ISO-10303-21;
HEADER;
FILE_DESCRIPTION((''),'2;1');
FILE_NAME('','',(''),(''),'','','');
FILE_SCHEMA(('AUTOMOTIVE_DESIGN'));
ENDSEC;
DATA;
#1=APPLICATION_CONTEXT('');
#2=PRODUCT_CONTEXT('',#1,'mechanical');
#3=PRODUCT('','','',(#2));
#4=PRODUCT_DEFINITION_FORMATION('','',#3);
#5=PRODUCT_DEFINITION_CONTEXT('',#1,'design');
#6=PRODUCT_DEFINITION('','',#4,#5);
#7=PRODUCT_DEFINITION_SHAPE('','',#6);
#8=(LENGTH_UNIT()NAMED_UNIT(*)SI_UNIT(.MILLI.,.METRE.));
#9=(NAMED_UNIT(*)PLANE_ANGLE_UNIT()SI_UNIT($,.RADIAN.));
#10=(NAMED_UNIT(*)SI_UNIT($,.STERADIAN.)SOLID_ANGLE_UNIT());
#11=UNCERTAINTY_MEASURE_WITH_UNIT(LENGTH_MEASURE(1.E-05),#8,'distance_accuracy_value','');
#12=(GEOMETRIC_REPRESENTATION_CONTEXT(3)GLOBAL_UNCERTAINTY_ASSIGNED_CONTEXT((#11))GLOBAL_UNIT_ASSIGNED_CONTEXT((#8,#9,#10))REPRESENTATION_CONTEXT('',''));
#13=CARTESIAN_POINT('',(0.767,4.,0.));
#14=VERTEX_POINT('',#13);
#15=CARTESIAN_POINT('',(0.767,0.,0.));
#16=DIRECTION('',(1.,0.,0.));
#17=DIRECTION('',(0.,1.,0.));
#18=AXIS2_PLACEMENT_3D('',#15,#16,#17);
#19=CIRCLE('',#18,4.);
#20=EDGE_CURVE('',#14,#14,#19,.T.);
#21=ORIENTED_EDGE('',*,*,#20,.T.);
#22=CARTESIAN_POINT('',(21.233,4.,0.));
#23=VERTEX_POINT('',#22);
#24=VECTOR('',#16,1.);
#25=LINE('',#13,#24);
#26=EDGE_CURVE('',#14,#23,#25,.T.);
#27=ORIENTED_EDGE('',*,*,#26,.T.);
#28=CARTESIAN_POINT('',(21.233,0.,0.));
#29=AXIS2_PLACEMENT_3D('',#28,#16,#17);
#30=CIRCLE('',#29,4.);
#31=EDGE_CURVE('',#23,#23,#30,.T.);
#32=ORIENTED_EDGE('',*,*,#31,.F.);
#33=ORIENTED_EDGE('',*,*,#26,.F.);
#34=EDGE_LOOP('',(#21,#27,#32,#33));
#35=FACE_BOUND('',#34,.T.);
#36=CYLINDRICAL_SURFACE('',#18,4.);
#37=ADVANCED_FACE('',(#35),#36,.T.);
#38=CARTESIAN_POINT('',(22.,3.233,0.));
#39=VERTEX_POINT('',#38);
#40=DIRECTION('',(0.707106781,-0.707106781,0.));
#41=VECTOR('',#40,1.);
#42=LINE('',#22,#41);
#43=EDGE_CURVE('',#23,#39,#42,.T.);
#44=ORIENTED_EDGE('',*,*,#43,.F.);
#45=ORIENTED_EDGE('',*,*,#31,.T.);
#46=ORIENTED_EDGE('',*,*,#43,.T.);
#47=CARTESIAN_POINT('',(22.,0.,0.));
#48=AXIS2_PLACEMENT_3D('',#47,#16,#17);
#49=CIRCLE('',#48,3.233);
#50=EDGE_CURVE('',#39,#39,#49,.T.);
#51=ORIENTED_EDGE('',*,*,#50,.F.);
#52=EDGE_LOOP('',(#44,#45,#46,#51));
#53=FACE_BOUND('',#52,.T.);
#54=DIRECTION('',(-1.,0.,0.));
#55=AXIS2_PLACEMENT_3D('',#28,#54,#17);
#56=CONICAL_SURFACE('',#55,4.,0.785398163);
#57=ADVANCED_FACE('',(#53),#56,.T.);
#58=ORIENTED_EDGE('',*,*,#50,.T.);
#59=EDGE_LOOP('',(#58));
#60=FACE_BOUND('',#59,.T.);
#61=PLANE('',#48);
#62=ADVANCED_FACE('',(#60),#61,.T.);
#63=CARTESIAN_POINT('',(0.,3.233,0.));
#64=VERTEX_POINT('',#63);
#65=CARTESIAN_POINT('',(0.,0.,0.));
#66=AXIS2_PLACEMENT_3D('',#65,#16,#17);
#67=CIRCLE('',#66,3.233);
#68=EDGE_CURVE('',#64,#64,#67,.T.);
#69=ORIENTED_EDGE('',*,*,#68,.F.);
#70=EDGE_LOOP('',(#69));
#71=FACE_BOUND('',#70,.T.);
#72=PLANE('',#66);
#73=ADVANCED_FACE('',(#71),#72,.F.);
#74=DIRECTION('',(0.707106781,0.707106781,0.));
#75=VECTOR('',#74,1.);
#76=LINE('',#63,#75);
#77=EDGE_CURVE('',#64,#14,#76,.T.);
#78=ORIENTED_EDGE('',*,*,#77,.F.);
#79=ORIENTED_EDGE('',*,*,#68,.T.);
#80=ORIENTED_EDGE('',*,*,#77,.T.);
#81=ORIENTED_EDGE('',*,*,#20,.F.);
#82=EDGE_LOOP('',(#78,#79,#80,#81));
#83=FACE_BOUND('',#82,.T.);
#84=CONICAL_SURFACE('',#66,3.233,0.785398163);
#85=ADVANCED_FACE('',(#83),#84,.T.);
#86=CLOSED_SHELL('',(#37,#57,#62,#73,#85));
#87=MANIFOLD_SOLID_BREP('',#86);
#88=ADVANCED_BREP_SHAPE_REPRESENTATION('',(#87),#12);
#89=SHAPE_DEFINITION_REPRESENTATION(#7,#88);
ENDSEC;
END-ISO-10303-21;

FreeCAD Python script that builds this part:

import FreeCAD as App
import Part
import Sketcher

V = App.Vector
Q = App.Units.Quantity


def add_polygon(sketch, points):
    """Adds a closed chain of lines whose ends are joined by coincident constraints."""
    first, n = sketch.GeometryCount, len(points)
    for a, b in zip(points, points[1:] + points[:1]):
        sketch.addGeometry(Part.LineSegment(App.Vector(*a, 0), App.Vector(*b, 0)), False)
    for i in range(n):
        sketch.addConstraint(Sketcher.Constraint("Coincident", first + i, 2, first + (i + 1) % n, 1))

doc = App.newDocument("Part")
body = doc.addObject("PartDesign::Body", "Body")

# Sketch on XY plane
sketch1 = doc.addObject("Sketcher::SketchObject", "Sketch")
body.addObject(sketch1)
sketch1.AttachmentSupport = (doc.XY_Plane, [""])
sketch1.MapMode = "FlatFace"
add_polygon(sketch1, [(0, 0), (22, 0), (22, 3.2), (21.2, 4), (0.8, 4), (0, 3.2)])  # lines 0-5
sketch1.addConstraint(Sketcher.Constraint("Horizontal", 0))
sketch1.addConstraint(Sketcher.Constraint("Vertical", 1))
sketch1.addConstraint(Sketcher.Constraint("Horizontal", 3))
sketch1.addConstraint(Sketcher.Constraint("Vertical", 5))
sketch1.addConstraint(Sketcher.Constraint("Coincident", 5, 2, -1, 1))
sketch1.addConstraint(Sketcher.Constraint("Perpendicular", 2, 4))
sketch1.addConstraint(Sketcher.Constraint("Horizontal", 1, 2, 4, 2))
sketch1.addConstraint(Sketcher.Constraint("Equal", 2, 4))
sketch1.addConstraint(Sketcher.Constraint("DistanceX", 0, 1, 0, 2, Q("22 mm")))
sketch1.addConstraint(Sketcher.Constraint("DistanceY", -1, 1, 2, 2, Q("4 mm")))
sketch1.addConstraint(Sketcher.Constraint("DistanceX", 3, 2, 3, 1, Q("20.466 mm")))
revolution = doc.addObject("PartDesign::Revolution", "Revolution")
body.addObject(revolution)
revolution.Profile = sketch1
revolution.ReferenceAxis = (sketch1, ["H_Axis"])
revolution.Angle = 360

doc.recompute()
